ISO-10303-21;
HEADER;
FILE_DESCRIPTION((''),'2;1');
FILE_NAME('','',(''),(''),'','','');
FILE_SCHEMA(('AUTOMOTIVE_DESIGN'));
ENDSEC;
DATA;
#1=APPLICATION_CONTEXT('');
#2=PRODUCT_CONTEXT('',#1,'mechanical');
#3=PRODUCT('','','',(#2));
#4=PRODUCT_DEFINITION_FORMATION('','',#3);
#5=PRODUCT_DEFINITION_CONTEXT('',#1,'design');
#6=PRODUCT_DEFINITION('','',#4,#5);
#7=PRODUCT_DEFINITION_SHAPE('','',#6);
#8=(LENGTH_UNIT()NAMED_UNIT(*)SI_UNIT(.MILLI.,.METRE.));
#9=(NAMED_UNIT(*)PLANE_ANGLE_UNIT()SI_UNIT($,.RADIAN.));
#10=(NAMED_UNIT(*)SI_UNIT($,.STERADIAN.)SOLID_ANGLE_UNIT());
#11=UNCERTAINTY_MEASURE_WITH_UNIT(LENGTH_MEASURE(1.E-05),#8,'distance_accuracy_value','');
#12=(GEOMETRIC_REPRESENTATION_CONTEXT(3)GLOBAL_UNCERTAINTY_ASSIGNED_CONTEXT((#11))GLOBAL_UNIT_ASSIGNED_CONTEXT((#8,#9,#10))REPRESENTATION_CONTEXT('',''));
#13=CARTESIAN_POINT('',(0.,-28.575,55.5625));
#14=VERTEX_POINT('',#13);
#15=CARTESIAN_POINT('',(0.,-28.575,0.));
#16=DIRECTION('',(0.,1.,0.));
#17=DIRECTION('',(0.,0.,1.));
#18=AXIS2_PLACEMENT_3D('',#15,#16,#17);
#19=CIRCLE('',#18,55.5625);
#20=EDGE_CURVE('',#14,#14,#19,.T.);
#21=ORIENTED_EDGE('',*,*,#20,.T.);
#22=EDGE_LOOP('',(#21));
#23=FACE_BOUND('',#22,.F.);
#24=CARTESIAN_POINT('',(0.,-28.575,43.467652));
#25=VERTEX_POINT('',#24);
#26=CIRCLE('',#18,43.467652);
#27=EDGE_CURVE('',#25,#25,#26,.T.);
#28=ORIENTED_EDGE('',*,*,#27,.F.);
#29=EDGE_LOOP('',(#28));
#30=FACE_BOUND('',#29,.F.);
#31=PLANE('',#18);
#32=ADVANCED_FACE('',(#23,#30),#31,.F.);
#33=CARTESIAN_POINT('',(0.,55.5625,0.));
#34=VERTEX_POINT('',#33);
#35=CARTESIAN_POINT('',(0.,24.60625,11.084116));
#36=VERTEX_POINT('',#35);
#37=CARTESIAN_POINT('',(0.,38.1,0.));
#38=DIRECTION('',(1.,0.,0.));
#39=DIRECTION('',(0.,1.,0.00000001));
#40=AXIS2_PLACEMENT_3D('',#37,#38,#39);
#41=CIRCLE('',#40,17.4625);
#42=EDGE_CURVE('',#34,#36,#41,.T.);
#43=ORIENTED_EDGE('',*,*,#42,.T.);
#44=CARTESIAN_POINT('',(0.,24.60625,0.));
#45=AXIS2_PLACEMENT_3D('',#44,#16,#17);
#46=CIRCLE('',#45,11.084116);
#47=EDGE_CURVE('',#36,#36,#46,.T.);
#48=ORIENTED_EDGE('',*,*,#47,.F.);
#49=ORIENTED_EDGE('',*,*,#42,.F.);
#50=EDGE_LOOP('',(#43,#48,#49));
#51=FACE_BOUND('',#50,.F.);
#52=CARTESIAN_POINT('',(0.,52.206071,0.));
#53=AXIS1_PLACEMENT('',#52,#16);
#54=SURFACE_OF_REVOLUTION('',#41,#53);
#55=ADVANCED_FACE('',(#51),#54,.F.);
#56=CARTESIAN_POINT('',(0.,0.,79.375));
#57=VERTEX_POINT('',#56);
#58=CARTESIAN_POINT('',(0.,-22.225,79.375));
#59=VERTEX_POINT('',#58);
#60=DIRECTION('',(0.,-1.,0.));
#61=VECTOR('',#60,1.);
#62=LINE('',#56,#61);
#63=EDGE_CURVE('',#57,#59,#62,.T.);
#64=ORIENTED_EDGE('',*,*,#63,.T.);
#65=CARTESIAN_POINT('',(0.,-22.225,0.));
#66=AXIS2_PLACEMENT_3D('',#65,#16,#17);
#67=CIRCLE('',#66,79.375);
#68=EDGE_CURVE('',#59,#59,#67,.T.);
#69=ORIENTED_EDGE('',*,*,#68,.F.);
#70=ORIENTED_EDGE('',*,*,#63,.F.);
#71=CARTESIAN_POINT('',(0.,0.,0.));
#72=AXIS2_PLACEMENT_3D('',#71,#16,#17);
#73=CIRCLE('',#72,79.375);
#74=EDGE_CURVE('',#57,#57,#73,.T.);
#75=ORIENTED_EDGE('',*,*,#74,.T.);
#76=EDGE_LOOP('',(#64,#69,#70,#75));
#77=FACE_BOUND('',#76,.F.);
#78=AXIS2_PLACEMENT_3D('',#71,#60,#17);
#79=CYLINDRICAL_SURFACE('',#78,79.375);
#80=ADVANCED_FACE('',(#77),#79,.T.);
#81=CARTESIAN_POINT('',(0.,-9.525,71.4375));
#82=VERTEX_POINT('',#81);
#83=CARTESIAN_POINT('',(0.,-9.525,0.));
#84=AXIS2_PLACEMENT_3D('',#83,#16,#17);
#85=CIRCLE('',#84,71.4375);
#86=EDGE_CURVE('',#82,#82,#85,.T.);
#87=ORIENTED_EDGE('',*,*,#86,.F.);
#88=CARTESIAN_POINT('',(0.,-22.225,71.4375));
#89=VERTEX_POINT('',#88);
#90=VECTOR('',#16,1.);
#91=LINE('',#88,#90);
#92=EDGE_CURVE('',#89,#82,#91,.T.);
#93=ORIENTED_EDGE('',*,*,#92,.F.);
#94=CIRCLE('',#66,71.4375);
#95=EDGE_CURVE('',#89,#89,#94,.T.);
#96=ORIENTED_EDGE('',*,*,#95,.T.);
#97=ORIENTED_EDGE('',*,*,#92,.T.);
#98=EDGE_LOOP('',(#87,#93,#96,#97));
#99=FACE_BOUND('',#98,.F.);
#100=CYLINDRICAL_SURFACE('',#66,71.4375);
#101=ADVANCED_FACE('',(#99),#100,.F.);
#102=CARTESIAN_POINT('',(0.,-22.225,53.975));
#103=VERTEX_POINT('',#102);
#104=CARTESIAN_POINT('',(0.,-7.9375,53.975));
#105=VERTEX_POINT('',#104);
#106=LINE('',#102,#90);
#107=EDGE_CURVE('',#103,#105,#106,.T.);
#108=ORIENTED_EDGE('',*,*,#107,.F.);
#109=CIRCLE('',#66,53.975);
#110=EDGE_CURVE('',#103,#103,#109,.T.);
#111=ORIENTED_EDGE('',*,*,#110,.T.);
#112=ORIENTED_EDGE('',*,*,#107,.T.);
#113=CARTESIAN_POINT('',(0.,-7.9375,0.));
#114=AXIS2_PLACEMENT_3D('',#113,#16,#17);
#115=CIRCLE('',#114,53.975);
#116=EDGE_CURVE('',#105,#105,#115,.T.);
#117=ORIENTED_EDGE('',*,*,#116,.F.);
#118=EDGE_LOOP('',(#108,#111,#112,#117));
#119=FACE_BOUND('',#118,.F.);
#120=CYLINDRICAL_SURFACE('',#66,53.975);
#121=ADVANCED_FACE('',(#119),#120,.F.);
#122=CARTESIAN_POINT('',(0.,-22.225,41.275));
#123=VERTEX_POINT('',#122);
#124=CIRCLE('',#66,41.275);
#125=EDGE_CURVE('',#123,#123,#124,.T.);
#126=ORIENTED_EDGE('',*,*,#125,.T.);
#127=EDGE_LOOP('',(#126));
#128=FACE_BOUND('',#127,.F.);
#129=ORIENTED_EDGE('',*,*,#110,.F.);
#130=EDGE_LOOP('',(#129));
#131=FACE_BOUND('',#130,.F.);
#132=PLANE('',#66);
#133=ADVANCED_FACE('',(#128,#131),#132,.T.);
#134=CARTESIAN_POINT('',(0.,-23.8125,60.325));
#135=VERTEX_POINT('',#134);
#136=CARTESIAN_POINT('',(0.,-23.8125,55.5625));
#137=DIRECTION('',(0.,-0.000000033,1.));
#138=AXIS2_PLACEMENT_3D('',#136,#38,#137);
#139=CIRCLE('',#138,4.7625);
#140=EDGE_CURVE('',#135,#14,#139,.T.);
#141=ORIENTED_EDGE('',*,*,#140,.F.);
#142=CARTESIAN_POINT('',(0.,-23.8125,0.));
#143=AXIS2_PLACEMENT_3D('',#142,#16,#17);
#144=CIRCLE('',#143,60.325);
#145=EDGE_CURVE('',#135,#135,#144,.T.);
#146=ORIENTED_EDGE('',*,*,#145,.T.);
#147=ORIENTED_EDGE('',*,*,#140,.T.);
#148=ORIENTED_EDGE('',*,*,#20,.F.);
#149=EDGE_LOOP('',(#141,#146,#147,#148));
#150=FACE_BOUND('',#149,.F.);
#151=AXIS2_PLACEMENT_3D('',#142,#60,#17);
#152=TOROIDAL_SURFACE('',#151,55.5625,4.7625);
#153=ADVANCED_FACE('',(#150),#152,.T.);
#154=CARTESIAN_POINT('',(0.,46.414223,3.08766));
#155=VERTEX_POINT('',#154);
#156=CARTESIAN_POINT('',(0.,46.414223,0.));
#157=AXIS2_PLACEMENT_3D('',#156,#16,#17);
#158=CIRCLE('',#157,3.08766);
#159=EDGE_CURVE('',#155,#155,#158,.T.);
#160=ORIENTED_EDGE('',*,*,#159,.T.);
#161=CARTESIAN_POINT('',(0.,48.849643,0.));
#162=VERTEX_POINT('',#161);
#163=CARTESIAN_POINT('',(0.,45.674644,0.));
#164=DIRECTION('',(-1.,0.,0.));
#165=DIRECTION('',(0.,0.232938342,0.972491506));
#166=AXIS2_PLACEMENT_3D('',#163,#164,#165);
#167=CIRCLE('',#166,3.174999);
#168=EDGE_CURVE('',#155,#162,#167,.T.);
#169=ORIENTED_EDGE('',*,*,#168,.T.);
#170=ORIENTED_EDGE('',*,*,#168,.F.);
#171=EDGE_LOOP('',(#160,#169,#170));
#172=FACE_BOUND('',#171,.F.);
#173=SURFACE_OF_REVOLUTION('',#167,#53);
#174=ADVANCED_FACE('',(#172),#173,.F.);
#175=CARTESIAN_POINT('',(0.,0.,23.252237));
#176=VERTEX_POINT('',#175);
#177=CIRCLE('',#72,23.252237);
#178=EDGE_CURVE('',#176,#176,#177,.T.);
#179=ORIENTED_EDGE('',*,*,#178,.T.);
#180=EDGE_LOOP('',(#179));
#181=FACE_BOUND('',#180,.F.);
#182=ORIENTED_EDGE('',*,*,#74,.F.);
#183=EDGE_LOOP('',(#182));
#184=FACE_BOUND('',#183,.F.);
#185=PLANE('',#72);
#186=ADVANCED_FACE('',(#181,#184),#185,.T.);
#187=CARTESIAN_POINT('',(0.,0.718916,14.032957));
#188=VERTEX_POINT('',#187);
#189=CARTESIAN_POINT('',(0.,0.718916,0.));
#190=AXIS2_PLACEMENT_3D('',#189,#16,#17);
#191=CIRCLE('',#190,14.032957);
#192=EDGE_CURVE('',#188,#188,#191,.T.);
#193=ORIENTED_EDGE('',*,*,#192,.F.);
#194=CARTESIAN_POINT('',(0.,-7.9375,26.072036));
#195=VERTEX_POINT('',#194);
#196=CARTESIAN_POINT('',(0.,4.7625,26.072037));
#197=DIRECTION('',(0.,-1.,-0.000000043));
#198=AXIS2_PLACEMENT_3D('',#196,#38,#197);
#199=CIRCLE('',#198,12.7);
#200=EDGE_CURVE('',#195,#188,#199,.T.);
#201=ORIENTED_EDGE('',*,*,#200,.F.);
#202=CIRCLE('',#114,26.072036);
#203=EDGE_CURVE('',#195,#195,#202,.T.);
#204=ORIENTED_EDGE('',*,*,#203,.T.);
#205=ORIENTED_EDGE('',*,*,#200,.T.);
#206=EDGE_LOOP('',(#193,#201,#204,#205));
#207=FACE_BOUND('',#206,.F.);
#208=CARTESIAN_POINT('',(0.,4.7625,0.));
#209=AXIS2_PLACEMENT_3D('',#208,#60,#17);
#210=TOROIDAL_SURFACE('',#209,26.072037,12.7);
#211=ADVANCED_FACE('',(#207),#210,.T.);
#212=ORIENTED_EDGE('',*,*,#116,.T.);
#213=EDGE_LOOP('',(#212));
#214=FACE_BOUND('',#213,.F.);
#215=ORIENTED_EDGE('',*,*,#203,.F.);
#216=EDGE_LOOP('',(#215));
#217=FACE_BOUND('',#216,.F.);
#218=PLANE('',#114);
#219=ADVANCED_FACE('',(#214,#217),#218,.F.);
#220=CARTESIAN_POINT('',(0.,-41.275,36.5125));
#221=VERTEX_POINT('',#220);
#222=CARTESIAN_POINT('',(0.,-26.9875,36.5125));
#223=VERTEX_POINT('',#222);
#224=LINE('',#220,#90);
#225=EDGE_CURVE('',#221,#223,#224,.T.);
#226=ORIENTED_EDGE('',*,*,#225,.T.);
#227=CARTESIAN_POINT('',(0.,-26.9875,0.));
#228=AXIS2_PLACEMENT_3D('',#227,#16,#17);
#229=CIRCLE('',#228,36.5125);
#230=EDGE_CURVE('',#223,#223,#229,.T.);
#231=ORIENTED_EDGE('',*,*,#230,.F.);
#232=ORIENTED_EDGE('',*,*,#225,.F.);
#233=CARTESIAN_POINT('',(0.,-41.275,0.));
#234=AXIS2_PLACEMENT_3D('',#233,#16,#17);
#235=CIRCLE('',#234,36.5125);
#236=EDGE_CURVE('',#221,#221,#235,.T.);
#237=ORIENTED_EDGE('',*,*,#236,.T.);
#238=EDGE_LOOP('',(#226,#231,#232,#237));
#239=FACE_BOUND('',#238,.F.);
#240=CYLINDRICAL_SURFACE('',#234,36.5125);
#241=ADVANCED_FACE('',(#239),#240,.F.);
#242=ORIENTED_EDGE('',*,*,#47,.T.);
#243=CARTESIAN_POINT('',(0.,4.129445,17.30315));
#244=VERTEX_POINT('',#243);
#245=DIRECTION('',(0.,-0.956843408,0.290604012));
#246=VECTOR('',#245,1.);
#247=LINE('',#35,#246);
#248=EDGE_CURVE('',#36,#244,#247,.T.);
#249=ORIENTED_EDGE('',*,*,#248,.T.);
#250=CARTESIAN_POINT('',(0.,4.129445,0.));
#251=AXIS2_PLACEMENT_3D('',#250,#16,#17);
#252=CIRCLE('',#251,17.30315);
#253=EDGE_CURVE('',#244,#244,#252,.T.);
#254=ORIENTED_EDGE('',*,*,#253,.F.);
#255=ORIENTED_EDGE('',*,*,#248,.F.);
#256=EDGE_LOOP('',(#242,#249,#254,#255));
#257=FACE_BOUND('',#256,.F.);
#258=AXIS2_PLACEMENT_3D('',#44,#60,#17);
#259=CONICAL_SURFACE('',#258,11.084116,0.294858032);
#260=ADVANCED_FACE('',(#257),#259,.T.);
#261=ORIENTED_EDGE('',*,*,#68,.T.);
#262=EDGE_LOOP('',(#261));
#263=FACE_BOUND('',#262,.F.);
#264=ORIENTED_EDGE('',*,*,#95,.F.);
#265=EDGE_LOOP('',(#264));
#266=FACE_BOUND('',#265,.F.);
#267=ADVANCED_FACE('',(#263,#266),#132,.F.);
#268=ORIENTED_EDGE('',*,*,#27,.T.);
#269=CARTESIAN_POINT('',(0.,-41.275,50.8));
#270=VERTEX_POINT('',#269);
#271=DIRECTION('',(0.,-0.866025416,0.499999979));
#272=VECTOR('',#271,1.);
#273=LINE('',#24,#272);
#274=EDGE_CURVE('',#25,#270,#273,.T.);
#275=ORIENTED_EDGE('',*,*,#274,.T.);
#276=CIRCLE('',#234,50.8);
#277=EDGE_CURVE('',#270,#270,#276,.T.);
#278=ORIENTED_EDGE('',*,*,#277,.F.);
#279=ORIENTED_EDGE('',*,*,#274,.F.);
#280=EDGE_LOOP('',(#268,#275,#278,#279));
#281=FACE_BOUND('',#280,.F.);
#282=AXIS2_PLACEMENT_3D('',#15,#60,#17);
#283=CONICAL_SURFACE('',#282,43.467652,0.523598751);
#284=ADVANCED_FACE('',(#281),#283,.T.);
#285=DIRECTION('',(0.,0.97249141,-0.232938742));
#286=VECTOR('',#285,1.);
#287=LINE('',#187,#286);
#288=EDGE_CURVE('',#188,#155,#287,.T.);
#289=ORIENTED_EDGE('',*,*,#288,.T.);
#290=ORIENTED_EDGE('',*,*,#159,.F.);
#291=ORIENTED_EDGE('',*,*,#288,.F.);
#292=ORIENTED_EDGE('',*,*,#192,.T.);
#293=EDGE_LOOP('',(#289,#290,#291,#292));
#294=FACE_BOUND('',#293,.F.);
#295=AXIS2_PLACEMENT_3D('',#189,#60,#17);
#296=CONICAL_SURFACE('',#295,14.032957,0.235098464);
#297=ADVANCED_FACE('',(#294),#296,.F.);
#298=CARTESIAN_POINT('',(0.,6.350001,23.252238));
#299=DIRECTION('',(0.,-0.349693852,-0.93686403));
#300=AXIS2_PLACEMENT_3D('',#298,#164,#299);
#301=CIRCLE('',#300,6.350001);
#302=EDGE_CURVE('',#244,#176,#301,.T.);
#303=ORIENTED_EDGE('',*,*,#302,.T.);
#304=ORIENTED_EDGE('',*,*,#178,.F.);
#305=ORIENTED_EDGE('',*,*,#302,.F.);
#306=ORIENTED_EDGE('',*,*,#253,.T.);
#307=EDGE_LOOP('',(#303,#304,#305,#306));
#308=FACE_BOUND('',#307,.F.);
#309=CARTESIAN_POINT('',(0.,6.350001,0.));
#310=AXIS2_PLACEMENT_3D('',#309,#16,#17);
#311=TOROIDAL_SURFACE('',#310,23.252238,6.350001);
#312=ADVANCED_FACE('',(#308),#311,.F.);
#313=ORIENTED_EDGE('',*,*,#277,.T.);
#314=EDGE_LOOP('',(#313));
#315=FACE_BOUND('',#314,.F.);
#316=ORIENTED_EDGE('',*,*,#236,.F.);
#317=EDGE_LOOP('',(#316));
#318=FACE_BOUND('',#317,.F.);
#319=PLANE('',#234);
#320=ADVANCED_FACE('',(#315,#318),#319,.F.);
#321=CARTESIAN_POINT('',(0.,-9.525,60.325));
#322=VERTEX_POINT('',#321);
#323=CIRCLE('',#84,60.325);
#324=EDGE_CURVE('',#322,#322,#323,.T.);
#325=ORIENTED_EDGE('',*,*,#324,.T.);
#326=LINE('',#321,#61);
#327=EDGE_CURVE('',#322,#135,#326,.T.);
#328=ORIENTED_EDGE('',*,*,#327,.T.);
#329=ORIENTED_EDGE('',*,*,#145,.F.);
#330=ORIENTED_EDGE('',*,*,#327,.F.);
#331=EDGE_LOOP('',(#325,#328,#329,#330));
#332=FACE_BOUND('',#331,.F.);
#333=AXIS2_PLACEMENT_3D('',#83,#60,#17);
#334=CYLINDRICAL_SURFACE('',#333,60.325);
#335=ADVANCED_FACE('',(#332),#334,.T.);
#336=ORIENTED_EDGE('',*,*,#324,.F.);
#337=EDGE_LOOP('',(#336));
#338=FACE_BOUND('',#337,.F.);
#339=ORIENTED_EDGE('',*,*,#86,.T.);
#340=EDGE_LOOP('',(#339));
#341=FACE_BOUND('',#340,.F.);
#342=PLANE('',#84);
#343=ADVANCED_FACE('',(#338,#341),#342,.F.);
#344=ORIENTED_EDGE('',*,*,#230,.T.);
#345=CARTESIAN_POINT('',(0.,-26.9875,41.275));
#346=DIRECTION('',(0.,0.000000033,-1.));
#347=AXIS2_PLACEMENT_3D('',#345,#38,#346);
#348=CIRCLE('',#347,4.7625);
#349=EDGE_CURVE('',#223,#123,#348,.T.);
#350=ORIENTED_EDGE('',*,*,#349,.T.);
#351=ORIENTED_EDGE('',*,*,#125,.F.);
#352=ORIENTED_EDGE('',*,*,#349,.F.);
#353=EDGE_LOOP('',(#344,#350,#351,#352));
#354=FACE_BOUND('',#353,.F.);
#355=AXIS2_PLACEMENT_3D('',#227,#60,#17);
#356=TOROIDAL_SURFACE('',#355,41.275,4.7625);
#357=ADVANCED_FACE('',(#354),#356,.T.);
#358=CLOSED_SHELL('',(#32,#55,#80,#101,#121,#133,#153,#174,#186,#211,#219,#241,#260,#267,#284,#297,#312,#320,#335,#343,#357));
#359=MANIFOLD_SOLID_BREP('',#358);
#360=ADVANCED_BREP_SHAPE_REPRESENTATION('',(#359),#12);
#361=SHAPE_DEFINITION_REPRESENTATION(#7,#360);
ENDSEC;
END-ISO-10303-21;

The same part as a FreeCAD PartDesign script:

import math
import FreeCAD as App
import Part
import Sketcher
Q = App.Units.Quantity

doc = App.newDocument("Part")
params = doc.addObject("Spreadsheet::Sheet", "Params")
for row, (alias, value) in enumerate([
    ("sketch1_radius", "0.5 in"),
    ("sketch1_radius2", "0.2500001 in"),
    ("sketch1_width", "0.5 in"),
    ("sketch1_radius3", "0.1875 in"),
    ("sketch1_radius4", "0.125 in"),
    ("revolution_angle", "360 deg"),
], start=1):
    params.set(f"A{row}", alias)
    params.set(f"B{row}", "=" + value)
    params.setAlias(f"B{row}", alias)

body = doc.addObject("PartDesign::Body", "Body")

# Sketch on YZ plane
sketch1 = body.newObject("Sketcher::SketchObject", "Sketch")
sketch1.AttachmentSupport = (doc.getObject("YZ_Plane"), [""])
sketch1.MapMode = "FlatFace"
sketch1.addGeometry([
    Part.LineSegment(App.Vector(0, 23.3, 0), App.Vector(0, 79.4, 0)),  # 0
    Part.LineSegment(App.Vector(0, 79.4, 0), App.Vector(-22.2, 79.4, 0)),  # 1
    Part.LineSegment(App.Vector(-22.2, 79.4, 0), App.Vector(-22.2, 71.4, 0)),  # 2
    Part.LineSegment(App.Vector(-22.2, 71.4, 0), App.Vector(-9.5, 71.4, 0)),  # 3
    Part.LineSegment(App.Vector(-9.5, 71.4, 0), App.Vector(-9.5, 60.3, 0)),  # 4
    Part.LineSegment(App.Vector(-9.5, 60.3, 0), App.Vector(-23.8, 60.3, 0)),  # 5
    Part.ArcOfCircle(Part.Circle(App.Vector(-23.8, 55.6, 0), App.Vector(0, 0, 1), 4.8), math.radians(90), math.radians(180)),  # 6
    Part.LineSegment(App.Vector(-28.6, 55.6, 0), App.Vector(-28.6, 43.5, 0)),  # 7
    Part.LineSegment(App.Vector(-28.6, 43.5, 0), App.Vector(-41.3, 50.8, 0)),  # 8
    Part.LineSegment(App.Vector(-41.3, 50.8, 0), App.Vector(-41.3, 36.5, 0)),  # 9
    Part.LineSegment(App.Vector(-41.3, 36.5, 0), App.Vector(-27, 36.5, 0)),  # 10
    Part.ArcOfCircle(Part.Circle(App.Vector(-27, 41.3, 0), App.Vector(0, 0, 1), 4.8), math.radians(-90), math.radians(0)),  # 11
    Part.LineSegment(App.Vector(-22.2, 41.3, 0), App.Vector(-22.2, 54, 0)),  # 12
    Part.LineSegment(App.Vector(-22.2, 54, 0), App.Vector(-7.9, 54, 0)),  # 13
    Part.LineSegment(App.Vector(-7.9, 54, 0), App.Vector(-7.9, 26.1, 0)),  # 14
    Part.ArcOfCircle(Part.Circle(App.Vector(4.8, 26.1, 0), App.Vector(0, 0, 1), 12.7), math.radians(-180), math.radians(-109)),  # 15
    Part.LineSegment(App.Vector(0.7, 14, 0), App.Vector(46.4, 3.1, 0)),  # 16
    Part.ArcOfCircle(Part.Circle(App.Vector(45.7, 0, 0), App.Vector(0, 0, 1), 3.2), math.radians(0), math.radians(77)),  # 17
    Part.LineSegment(App.Vector(48.8, 0, 0), App.Vector(55.6, 0, 0)),  # 18
    Part.ArcOfCircle(Part.Circle(App.Vector(38.1, 0, 0), App.Vector(0, 0, 1), 17.5), math.radians(0), math.radians(141)),  # 19
    Part.LineSegment(App.Vector(24.6, 11.1, 0), App.Vector(4.1, 17.3, 0)),  # 20
    Part.ArcOfCircle(Part.Circle(App.Vector(6.4, 23.3, 0), App.Vector(0, 0, 1), 6.4), math.radians(-180), math.radians(-110)),  # 21
], False)
sketch1.addConstraint([
    Sketcher.Constraint("Coincident", 0, 2, 1, 1),
    Sketcher.Constraint("Coincident", 1, 2, 2, 1),
    Sketcher.Constraint("Coincident", 2, 2, 3, 1),
    Sketcher.Constraint("Coincident", 3, 2, 4, 1),
    Sketcher.Constraint("Coincident", 4, 2, 5, 1),
    Sketcher.Constraint("Tangent", 5, 2, 6, 1),
    Sketcher.Constraint("Tangent", 6, 2, 7, 1),
    Sketcher.Constraint("Coincident", 7, 2, 8, 1),
    Sketcher.Constraint("Coincident", 8, 2, 9, 1),
    Sketcher.Constraint("Coincident", 9, 2, 10, 1),
    Sketcher.Constraint("Tangent", 10, 2, 11, 1),
    Sketcher.Constraint("Tangent", 11, 2, 12, 1),
    Sketcher.Constraint("Coincident", 12, 2, 13, 1),
    Sketcher.Constraint("Coincident", 13, 2, 14, 1),
    Sketcher.Constraint("Tangent", 14, 2, 15, 1),
    Sketcher.Constraint("Coincident", 15, 2, 16, 1),
    Sketcher.Constraint("Tangent", 16, 2, 17, 2),
    Sketcher.Constraint("Coincident", 17, 1, 18, 1),
    Sketcher.Constraint("Coincident", 18, 2, 19, 1),
    Sketcher.Constraint("Coincident", 19, 2, 20, 1),
    Sketcher.Constraint("Coincident", 20, 2, 21, 2),
    Sketcher.Constraint("Tangent", 21, 1, 0, 1),
    Sketcher.Constraint("Vertical", 0),
    Sketcher.Constraint("Horizontal", 1),
    Sketcher.Constraint("Vertical", 2),
    Sketcher.Constraint("Horizontal", 3),
    Sketcher.Constraint("Vertical", 4),
    Sketcher.Constraint("Horizontal", 5),
    Sketcher.Constraint("Vertical", 7),
    Sketcher.Constraint("Vertical", 9),
    Sketcher.Constraint("Horizontal", 10),
    Sketcher.Constraint("Vertical", 12),
    Sketcher.Constraint("Horizontal", 13),
    Sketcher.Constraint("Vertical", 14),
    Sketcher.Constraint("Horizontal", 18),
    Sketcher.Constraint("Equal", 6, 11),
    Sketcher.Constraint("PointOnObject", 17, 3, -1),
    Sketcher.Constraint("PointOnObject", 19, 3, -1),
    Sketcher.Constraint("PointOnObject", 0, 2, -2),
    Sketcher.Constraint("PointOnObject", 17, 1, -1),
    Sketcher.Constraint("Vertical", 2, 2, 11, 2),
    Sketcher.Constraint("Equal", 5, 10),
    Sketcher.Constraint("Equal", 10, 13),
    Sketcher.Constraint("Equal", 13, 9),
    Sketcher.Constraint("Equal", 3, 12),
    Sketcher.Constraint("Radius", 15, Q("0.5 in")),
    Sketcher.Constraint("Radius", 21, Q("0.2500001 in")),
    Sketcher.Constraint("DistanceX", 3, 1, 3, 2, Q("0.5 in")),
    Sketcher.Constraint("DistanceY", -1, 1, 8, 2, Q("2 in")),
    Sketcher.Constraint("Angle", 8, Q("150.000001 deg")),
    Sketcher.Constraint("Radius", 6, Q("0.1875 in")),
    Sketcher.Constraint("Radius", 17, Q("0.125 in")),
    Sketcher.Constraint("Radius", 19, Q("0.6875 in")),
    Sketcher.Constraint("DistanceX", -1, 1, 19, 3, Q("1.5 in")),
    Sketcher.Constraint("DistanceY", 11, 3, 0, 2, Q("1.5 in")),
    Sketcher.Constraint("DistanceX", 1, 2, 1, 1, Q("0.875 in")),
    Sketcher.Constraint("DistanceX", 5, 2, 5, 1, Q("0.5625 in")),
    Sketcher.Constraint("DistanceY", 2, 2, 2, 1, Q("0.3125 in")),
    Sketcher.Constraint("DistanceY", 4, 2, 4, 1, Q("0.4375 in")),
    Sketcher.Constraint("DistanceX", -1, 1, 19, 2, Q("0.96875 in")),
    Sketcher.Constraint("DistanceY", 21, 3, 15, 3, 2.819799),
    Sketcher.Constraint("DistanceX", 18, 1, 18, 2, 6.712857),
    Sketcher.Constraint("DistanceY", 0, 1, 0, 2, 56.122763),
    Sketcher.Constraint("DistanceY", -1, 1, 20, 2, 17.30315),
    Sketcher.Constraint("DistanceY", 15, 2, 21, 3, 9.219281),
])
sketch1.setExpression("Constraints[45]", "Params.sketch1_radius")
sketch1.setExpression("Constraints[46]", "Params.sketch1_radius2")
sketch1.setExpression("Constraints[47]", "Params.sketch1_width")
sketch1.setExpression("Constraints[50]", "Params.sketch1_radius3")
sketch1.setExpression("Constraints[51]", "Params.sketch1_radius4")
revolution = body.newObject("PartDesign::Revolution", "Revolution")
revolution.Profile = sketch1
revolution.ReferenceAxis = (sketch1, ["H_Axis"])
revolution.setExpression("Angle", "Params.revolution_angle")

doc.recompute()
